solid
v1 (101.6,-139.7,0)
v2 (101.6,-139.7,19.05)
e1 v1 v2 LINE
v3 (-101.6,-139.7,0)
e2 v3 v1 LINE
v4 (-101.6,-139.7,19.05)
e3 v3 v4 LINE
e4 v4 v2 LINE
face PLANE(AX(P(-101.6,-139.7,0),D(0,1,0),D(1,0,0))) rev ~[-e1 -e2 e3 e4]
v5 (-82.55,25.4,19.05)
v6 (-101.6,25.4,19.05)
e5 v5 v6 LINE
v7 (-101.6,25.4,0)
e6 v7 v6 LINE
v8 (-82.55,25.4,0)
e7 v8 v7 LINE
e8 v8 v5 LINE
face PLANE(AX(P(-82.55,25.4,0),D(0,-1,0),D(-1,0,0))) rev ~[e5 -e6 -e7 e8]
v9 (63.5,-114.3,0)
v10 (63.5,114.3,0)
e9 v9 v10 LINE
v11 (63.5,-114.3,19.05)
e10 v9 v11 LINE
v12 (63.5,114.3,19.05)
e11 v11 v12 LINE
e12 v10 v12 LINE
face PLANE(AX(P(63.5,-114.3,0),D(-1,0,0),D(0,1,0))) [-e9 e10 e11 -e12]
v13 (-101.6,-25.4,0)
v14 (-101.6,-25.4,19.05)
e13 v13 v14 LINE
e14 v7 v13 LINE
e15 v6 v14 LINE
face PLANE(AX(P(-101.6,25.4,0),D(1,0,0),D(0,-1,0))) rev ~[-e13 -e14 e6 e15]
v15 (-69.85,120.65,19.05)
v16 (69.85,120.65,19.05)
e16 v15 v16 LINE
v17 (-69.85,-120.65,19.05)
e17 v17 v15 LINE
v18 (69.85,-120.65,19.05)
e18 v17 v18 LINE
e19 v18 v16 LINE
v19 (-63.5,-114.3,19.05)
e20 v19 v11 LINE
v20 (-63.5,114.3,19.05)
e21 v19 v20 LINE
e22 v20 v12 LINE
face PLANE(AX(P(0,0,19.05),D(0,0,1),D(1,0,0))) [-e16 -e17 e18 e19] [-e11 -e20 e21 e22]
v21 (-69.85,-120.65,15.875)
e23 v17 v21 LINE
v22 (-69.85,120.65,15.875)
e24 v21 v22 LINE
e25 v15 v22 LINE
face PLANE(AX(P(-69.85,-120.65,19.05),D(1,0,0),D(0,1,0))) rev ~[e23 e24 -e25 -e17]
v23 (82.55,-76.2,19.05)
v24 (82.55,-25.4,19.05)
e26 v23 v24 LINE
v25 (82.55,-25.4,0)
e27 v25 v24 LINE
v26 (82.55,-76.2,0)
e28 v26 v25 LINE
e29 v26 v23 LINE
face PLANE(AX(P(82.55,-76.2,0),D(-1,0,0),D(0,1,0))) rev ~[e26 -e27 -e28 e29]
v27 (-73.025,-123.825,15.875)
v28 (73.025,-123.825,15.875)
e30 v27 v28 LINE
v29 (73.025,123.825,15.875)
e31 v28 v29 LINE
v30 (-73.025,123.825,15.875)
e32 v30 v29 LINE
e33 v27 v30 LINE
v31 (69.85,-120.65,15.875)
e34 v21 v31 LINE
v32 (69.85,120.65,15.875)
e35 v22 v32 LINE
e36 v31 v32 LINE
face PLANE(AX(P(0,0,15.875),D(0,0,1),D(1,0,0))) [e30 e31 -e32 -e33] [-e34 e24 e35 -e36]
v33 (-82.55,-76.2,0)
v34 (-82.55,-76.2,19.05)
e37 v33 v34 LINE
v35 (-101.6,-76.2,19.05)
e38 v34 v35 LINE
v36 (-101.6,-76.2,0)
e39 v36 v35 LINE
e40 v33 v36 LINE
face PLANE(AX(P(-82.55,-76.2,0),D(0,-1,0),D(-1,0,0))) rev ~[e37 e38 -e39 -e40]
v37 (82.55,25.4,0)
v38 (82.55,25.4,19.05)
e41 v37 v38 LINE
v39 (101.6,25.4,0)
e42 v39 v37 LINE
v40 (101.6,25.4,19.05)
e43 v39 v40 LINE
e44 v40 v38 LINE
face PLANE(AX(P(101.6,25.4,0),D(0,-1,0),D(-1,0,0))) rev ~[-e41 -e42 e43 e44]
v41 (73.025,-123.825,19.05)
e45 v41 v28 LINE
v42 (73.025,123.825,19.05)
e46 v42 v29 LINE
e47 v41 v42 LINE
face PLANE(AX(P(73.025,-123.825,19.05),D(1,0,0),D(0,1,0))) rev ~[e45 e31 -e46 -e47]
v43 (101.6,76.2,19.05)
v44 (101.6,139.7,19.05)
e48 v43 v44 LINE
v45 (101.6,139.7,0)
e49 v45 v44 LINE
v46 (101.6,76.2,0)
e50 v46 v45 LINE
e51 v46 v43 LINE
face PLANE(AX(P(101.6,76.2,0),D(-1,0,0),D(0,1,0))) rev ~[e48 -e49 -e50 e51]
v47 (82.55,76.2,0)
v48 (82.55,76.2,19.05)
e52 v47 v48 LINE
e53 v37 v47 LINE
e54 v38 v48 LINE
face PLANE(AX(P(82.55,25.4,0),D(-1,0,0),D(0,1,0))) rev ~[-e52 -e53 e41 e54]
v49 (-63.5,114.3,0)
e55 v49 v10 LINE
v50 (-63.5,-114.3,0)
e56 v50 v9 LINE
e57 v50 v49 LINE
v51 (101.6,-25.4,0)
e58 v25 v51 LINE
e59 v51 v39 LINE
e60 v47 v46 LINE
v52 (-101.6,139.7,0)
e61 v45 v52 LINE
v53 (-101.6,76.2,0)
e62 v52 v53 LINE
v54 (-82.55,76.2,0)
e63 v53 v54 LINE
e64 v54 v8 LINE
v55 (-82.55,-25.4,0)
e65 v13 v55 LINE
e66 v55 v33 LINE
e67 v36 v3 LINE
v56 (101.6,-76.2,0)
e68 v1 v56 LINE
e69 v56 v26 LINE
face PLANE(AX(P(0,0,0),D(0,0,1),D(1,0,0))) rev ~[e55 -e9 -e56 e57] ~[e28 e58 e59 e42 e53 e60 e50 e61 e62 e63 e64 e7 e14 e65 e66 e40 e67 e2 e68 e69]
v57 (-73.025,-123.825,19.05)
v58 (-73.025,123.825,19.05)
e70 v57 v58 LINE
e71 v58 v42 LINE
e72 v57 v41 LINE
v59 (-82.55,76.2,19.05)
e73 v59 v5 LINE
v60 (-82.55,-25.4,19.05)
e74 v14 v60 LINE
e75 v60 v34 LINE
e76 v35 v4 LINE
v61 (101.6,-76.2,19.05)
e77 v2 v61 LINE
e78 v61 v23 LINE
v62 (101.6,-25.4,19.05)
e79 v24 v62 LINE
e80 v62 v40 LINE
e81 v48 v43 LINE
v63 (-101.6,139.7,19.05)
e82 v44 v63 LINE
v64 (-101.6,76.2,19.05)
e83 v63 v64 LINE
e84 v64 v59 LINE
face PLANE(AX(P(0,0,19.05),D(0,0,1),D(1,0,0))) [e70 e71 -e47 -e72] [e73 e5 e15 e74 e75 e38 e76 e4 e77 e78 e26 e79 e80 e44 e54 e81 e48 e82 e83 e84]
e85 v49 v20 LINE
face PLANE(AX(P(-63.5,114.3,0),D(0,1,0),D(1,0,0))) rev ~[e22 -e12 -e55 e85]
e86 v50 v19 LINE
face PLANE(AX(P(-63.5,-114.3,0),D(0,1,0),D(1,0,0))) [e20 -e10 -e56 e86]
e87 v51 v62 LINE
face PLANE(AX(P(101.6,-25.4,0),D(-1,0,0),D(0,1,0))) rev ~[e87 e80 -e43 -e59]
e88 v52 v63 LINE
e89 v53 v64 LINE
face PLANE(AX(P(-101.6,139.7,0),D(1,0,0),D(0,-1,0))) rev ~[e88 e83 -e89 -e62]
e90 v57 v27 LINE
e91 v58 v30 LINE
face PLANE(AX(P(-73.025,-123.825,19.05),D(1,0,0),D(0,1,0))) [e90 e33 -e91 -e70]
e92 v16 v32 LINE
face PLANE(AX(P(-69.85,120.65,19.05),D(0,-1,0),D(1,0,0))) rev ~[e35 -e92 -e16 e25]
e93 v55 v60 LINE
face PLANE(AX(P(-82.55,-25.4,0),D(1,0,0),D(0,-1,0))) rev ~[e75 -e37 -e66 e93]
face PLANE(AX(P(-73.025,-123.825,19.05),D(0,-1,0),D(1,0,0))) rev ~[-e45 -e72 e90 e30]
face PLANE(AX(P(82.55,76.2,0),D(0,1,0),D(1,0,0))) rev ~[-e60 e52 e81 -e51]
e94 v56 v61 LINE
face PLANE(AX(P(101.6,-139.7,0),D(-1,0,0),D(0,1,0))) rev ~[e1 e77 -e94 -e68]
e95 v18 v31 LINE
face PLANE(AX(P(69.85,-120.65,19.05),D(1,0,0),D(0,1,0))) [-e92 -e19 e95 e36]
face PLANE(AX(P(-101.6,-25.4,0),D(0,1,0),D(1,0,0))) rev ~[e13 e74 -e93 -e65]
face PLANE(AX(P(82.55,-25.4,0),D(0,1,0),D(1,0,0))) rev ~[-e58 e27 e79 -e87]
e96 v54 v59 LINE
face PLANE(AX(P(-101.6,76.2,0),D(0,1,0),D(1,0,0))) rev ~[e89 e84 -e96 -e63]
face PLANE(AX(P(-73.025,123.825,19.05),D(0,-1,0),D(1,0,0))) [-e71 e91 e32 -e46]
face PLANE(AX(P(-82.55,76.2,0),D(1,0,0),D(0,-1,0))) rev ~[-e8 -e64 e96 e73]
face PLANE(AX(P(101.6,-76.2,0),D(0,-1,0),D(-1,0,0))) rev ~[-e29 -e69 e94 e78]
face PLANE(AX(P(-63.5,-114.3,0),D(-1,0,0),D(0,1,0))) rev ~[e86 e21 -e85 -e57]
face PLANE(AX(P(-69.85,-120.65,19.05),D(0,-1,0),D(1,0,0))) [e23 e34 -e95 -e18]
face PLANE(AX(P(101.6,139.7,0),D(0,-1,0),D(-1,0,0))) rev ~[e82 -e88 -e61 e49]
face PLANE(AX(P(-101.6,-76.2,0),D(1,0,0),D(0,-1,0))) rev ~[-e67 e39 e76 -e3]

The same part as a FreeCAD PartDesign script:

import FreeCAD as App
import Part
import Sketcher
from FreeCAD import Vector
Q = App.Units.Quantity

doc = App.newDocument("Part")
body = doc.addObject("PartDesign::Body", "Body")

sketch1 = doc.addObject("Sketcher::SketchObject", "Sketch")
body.addObject(sketch1)
sketch1.AttachmentSupport = (doc.XY_Plane, [""])
sketch1.MapMode = "FlatFace"
sketch1.addGeometry([
    Part.LineSegment(Vector(102, 140, 0), Vector(-102, 140, 0)),
    Part.LineSegment(Vector(-102, 140, 0), Vector(-102, 76, 0)),
    Part.LineSegment(Vector(-102, 76, 0), Vector(-83, 76, 0)),
    Part.LineSegment(Vector(-83, 76, 0), Vector(-83, 25, 0)),
    Part.LineSegment(Vector(-83, 25, 0), Vector(-102, 25, 0)),
    Part.LineSegment(Vector(-102, 25, 0), Vector(-102, -25, 0)),
    Part.LineSegment(Vector(-102, -25, 0), Vector(-83, -25, 0)),
    Part.LineSegment(Vector(-83, -25, 0), Vector(-83, -76, 0)),
    Part.LineSegment(Vector(-83, -76, 0), Vector(-102, -76, 0)),
    Part.LineSegment(Vector(-102, -76, 0), Vector(-102, -140, 0)),
    Part.LineSegment(Vector(-102, -140, 0), Vector(102, -140, 0)),
    Part.LineSegment(Vector(102, -140, 0), Vector(102, -76, 0)),
    Part.LineSegment(Vector(102, -76, 0), Vector(83, -76, 0)),
    Part.LineSegment(Vector(83, -76, 0), Vector(83, -25, 0)),
    Part.LineSegment(Vector(83, -25, 0), Vector(102, -25, 0)),
    Part.LineSegment(Vector(102, -25, 0), Vector(102, 25, 0)),
    Part.LineSegment(Vector(102, 25, 0), Vector(83, 25, 0)),
    Part.LineSegment(Vector(83, 25, 0), Vector(83, 76, 0)),
    Part.LineSegment(Vector(83, 76, 0), Vector(102, 76, 0)),
    Part.LineSegment(Vector(102, 76, 0), Vector(102, 140, 0)),
    Part.LineSegment(Vector(64, -114, 0), Vector(-64, -114, 0)),
    Part.LineSegment(Vector(-64, -114, 0), Vector(-64, 114, 0)),
    Part.LineSegment(Vector(-64, 114, 0), Vector(64, 114, 0)),
    Part.LineSegment(Vector(64, 114, 0), Vector(64, -114, 0)),
], False)
sketch1.addConstraint([
    Sketcher.Constraint("Coincident", 0, 2, 1, 1),
    Sketcher.Constraint("Coincident", 1, 2, 2, 1),
    Sketcher.Constraint("Coincident", 2, 2, 3, 1),
    Sketcher.Constraint("Coincident", 3, 2, 4, 1),
    Sketcher.Constraint("Coincident", 4, 2, 5, 1),
    Sketcher.Constraint("Coincident", 5, 2, 6, 1),
    Sketcher.Constraint("Coincident", 6, 2, 7, 1),
    Sketcher.Constraint("Coincident", 7, 2, 8, 1),
    Sketcher.Constraint("Coincident", 8, 2, 9, 1),
    Sketcher.Constraint("Coincident", 9, 2, 10, 1),
    Sketcher.Constraint("Coincident", 10, 2, 11, 1),
    Sketcher.Constraint("Coincident", 11, 2, 12, 1),
    Sketcher.Constraint("Coincident", 12, 2, 13, 1),
    Sketcher.Constraint("Coincident", 13, 2, 14, 1),
    Sketcher.Constraint("Coincident", 14, 2, 15, 1),
    Sketcher.Constraint("Coincident", 15, 2, 16, 1),
    Sketcher.Constraint("Coincident", 16, 2, 17, 1),
    Sketcher.Constraint("Coincident", 17, 2, 18, 1),
    Sketcher.Constraint("Coincident", 18, 2, 19, 1),
    Sketcher.Constraint("Coincident", 19, 2, 0, 1),
    Sketcher.Constraint("Coincident", 20, 2, 21, 1),
    Sketcher.Constraint("Coincident", 21, 2, 22, 1),
    Sketcher.Constraint("Coincident", 22, 2, 23, 1),
    Sketcher.Constraint("Coincident", 23, 2, 20, 1),
    Sketcher.Constraint("Horizontal", 0),
    Sketcher.Constraint("Vertical", 1),
    Sketcher.Constraint("Horizontal", 2),
    Sketcher.Constraint("Vertical", 3),
    Sketcher.Constraint("Horizontal", 4),
    Sketcher.Constraint("Vertical", 5),
    Sketcher.Constraint("Horizontal", 6),
    Sketcher.Constraint("Vertical", 7),
    Sketcher.Constraint("Horizontal", 8),
    Sketcher.Constraint("Vertical", 9),
    Sketcher.Constraint("Horizontal", 10),
    Sketcher.Constraint("Vertical", 11),
    Sketcher.Constraint("Horizontal", 12),
    Sketcher.Constraint("Vertical", 13),
    Sketcher.Constraint("Horizontal", 14),
    Sketcher.Constraint("Vertical", 15),
    Sketcher.Constraint("Horizontal", 16),
    Sketcher.Constraint("Vertical", 17),
    Sketcher.Constraint("Horizontal", 18),
    Sketcher.Constraint("Vertical", 19),
    Sketcher.Constraint("Horizontal", 20),
    Sketcher.Constraint("Vertical", 21),
    Sketcher.Constraint("Horizontal", 22),
    Sketcher.Constraint("Vertical", 23),
    Sketcher.Constraint("Symmetric", 0, 2, 10, 2, -1, 1),
    Sketcher.Constraint("Symmetric", 2, 2, 12, 2, -1, 1),
    Sketcher.Constraint("Symmetric", 4, 2, 14, 2, -1, 1),
    Sketcher.Constraint("Symmetric", 6, 2, 16, 2, -1, 1),
    Sketcher.Constraint("Symmetric", 8, 2, 18, 2, -1, 1),
    Sketcher.Constraint("Symmetric", 20, 2, 22, 2, -1, 1),
    Sketcher.Constraint("Symmetric", 8, 2, 11, 2, -2),
    Sketcher.Constraint("Symmetric", 6, 2, 13, 2, -2),
    Sketcher.Constraint("Vertical", 1, 2, 4, 2),
    Sketcher.Constraint("Equal", 3, 5),
    Sketcher.Constraint("DistanceX", 0, 2, 0, 1, Q("8 in")),
    Sketcher.Constraint("DistanceX", 20, 2, 20, 1, Q("5 in")),
    Sketcher.Constraint("DistanceY", 3, 2, 3, 1, Q("2 in")),
    Sketcher.Constraint("DistanceY", 21, 1, 21, 2, Q("9 in")),
    Sketcher.Constraint("DistanceY", 1, 2, 1, 1, Q("2.5 in")),
    Sketcher.Constraint("DistanceX", 2, 1, 2, 2, Q("0.75 in")),
])
pad1 = doc.addObject("PartDesign::Pad", "Pad")
body.addObject(pad1)
pad1.Profile = sketch1
pad1.Length = Q("0.75 in")

sketch2 = doc.addObject("Sketcher::SketchObject", "Sketch001")
body.addObject(sketch2)
sketch2.AttachmentSupport = (doc.XY_Plane, [""])
sketch2.MapMode = "FlatFace"
sketch2.AttachmentOffset = App.Placement(Vector(0, 0, 0.75 * 25.4), App.Rotation())
sketch2.addGeometry([
    Part.LineSegment(Vector(-73, 124, 0), Vector(-73, -124, 0)),
    Part.LineSegment(Vector(-73, -124, 0), Vector(73, -124, 0)),
    Part.LineSegment(Vector(73, -124, 0), Vector(73, 124, 0)),
    Part.LineSegment(Vector(73, 124, 0), Vector(-73, 124, 0)),
    Part.LineSegment(Vector(70, -121, 0), Vector(-70, -121, 0)),
    Part.LineSegment(Vector(-70, -121, 0), Vector(-70, 121, 0)),
    Part.LineSegment(Vector(-70, 121, 0), Vector(70, 121, 0)),
    Part.LineSegment(Vector(70, 121, 0), Vector(70, -121, 0)),
], False)
sketch2.addConstraint([
    Sketcher.Constraint("Coincident", 0, 2, 1, 1),
    Sketcher.Constraint("Coincident", 1, 2, 2, 1),
    Sketcher.Constraint("Coincident", 2, 2, 3, 1),
    Sketcher.Constraint("Coincident", 3, 2, 0, 1),
    Sketcher.Constraint("Coincident", 4, 2, 5, 1),
    Sketcher.Constraint("Coincident", 5, 2, 6, 1),
    Sketcher.Constraint("Coincident", 6, 2, 7, 1),
    Sketcher.Constraint("Coincident", 7, 2, 4, 1),
    Sketcher.Constraint("Vertical", 0),
    Sketcher.Constraint("Horizontal", 1),
    Sketcher.Constraint("Vertical", 2),
    Sketcher.Constraint("Horizontal", 3),
    Sketcher.Constraint("Horizontal", 4),
    Sketcher.Constraint("Vertical", 5),
    Sketcher.Constraint("Horizontal", 6),
    Sketcher.Constraint("Vertical", 7),
    Sketcher.Constraint("Symmetric", 0, 2, 2, 2, -1, 1),
    Sketcher.Constraint("Symmetric", 4, 2, 6, 2, -1, 1),
    Sketcher.Constraint("DistanceX", 4, 2, 4, 1, Q("5.5 in")),
    Sketcher.Constraint("DistanceY", 5, 1, 5, 2, Q("9.5 in")),
    Sketcher.Constraint("DistanceX", 1, 1, 1, 2, Q("5.75 in")),
    Sketcher.Constraint("DistanceY", 0, 2, 0, 1, Q("9.75 in")),
])
pocket1 = doc.addObject("PartDesign::Pocket", "Pocket")
body.addObject(pocket1)
pocket1.Profile = sketch2
pocket1.Length = Q("0.125 in")

doc.recompute()
